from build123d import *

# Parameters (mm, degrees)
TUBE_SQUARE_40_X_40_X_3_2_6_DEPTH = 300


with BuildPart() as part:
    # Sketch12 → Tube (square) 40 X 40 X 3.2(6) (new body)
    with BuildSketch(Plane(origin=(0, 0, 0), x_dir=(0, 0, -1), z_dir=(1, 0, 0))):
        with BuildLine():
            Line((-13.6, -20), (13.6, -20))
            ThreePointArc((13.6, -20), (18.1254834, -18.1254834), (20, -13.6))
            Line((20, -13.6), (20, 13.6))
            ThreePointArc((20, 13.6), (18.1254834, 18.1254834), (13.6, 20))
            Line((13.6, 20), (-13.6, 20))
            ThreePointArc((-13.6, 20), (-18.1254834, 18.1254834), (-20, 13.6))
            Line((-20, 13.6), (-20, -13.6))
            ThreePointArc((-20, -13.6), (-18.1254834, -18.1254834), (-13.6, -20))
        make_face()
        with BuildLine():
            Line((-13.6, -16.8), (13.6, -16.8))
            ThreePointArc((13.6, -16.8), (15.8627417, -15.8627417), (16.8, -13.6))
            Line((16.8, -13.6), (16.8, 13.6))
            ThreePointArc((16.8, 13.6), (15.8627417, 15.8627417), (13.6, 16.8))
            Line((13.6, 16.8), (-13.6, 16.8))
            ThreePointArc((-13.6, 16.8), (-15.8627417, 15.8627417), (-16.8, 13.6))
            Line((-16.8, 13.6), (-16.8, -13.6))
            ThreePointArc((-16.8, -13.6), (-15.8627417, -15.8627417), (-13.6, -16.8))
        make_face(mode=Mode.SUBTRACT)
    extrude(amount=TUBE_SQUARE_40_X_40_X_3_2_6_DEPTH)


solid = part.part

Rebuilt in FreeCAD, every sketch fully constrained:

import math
import FreeCAD as App
import Part
import Sketcher

V = App.Vector

doc = App.newDocument("Part")
params = doc.addObject("Spreadsheet::Sheet", "Params")
for row, (alias, value) in enumerate([
    ("sketch1_radius", "6.4 mm"),
    ("sketch1_radius2", "3.2 mm"),
    ("sketch1_width", "27.2 mm"),
    ("pad1_length", "300 mm"),
], start=1):
    params.set(f"A{row}", alias)
    params.set(f"B{row}", "=" + value)
    params.setAlias(f"B{row}", alias)

body = doc.addObject("PartDesign::Body", "Body")

# Sketch on YZ plane
sketch1 = doc.addObject("Sketcher::SketchObject", "Sketch")
body.addObject(sketch1)
sketch1.AttachmentSupport = (doc.YZ_Plane, [""])
sketch1.MapMode = "FlatFace"
sketch1.addGeometry(Part.LineSegment(V(-20, 13.6, 0), V(-20, -13.6, 0)), False)
sketch1.addGeometry(Part.ArcOfCircle(Part.Circle(V(-13.6, -13.6, 0), V(0, 0, 1), 6.4), math.radians(180), math.radians(270)), False)
sketch1.addGeometry(Part.LineSegment(V(-13.6, -20, 0), V(13.6, -20, 0)), False)
sketch1.addGeometry(Part.ArcOfCircle(Part.Circle(V(13.6, -13.6, 0), V(0, 0, 1), 6.4), math.radians(-90), math.radians(0)), False)
sketch1.addGeometry(Part.LineSegment(V(20, -13.6, 0), V(20, 13.6, 0)), False)
sketch1.addGeometry(Part.ArcOfCircle(Part.Circle(V(13.6, 13.6, 0), V(0, 0, 1), 6.4), math.radians(0), math.radians(90)), False)
sketch1.addGeometry(Part.LineSegment(V(13.6, 20, 0), V(-13.6, 20, 0)), False)
sketch1.addGeometry(Part.ArcOfCircle(Part.Circle(V(-13.6, 13.6, 0), V(0, 0, 1), 6.4), math.radians(90), math.radians(180)), False)
sketch1.addGeometry(Part.LineSegment(V(-16.8, -13.6, 0), V(-16.8, 13.6, 0)), False)
sketch1.addGeometry(Part.ArcOfCircle(Part.Circle(V(-13.6, 13.6, 0), V(0, 0, 1), 3.2), math.radians(90), math.radians(180)), False)
sketch1.addGeometry(Part.LineSegment(V(-13.6, 16.8, 0), V(13.6, 16.8, 0)), False)
sketch1.addGeometry(Part.ArcOfCircle(Part.Circle(V(13.6, 13.6, 0), V(0, 0, 1), 3.2), math.radians(0), math.radians(90)), False)
sketch1.addGeometry(Part.LineSegment(V(16.8, 13.6, 0), V(16.8, -13.6, 0)), False)
sketch1.addGeometry(Part.ArcOfCircle(Part.Circle(V(13.6, -13.6, 0), V(0, 0, 1), 3.2), math.radians(-90), math.radians(0)), False)
sketch1.addGeometry(Part.LineSegment(V(13.6, -16.8, 0), V(-13.6, -16.8, 0)), False)
sketch1.addGeometry(Part.ArcOfCircle(Part.Circle(V(-13.6, -13.6, 0), V(0, 0, 1), 3.2), math.radians(180), math.radians(270)), False)
sketch1.addConstraint(Sketcher.Constraint("Tangent", 0, 2, 1, 1))
sketch1.addConstraint(Sketcher.Constraint("Tangent", 1, 2, 2, 1))
sketch1.addConstraint(Sketcher.Constraint("Tangent", 2, 2, 3, 1))
sketch1.addConstraint(Sketcher.Constraint("Tangent", 3, 2, 4, 1))
sketch1.addConstraint(Sketcher.Constraint("Tangent", 4, 2, 5, 1))
sketch1.addConstraint(Sketcher.Constraint("Tangent", 5, 2, 6, 1))
sketch1.addConstraint(Sketcher.Constraint("Tangent", 6, 2, 7, 1))
sketch1.addConstraint(Sketcher.Constraint("Tangent", 7, 2, 0, 1))
sketch1.addConstraint(Sketcher.Constraint("Tangent", 8, 2, 9, 2))
sketch1.addConstraint(Sketcher.Constraint("Tangent", 9, 1, 10, 1))
sketch1.addConstraint(Sketcher.Constraint("Tangent", 10, 2, 11, 2))
sketch1.addConstraint(Sketcher.Constraint("Tangent", 11, 1, 12, 1))
sketch1.addConstraint(Sketcher.Constraint("Tangent", 12, 2, 13, 2))
sketch1.addConstraint(Sketcher.Constraint("Tangent", 13, 1, 14, 1))
sketch1.addConstraint(Sketcher.Constraint("Tangent", 14, 2, 15, 2))
sketch1.addConstraint(Sketcher.Constraint("Tangent", 15, 1, 8, 1))
sketch1.addConstraint(Sketcher.Constraint("Vertical", 0))
sketch1.addConstraint(Sketcher.Constraint("Horizontal", 2))
sketch1.addConstraint(Sketcher.Constraint("Vertical", 4))
sketch1.addConstraint(Sketcher.Constraint("Horizontal", 6))
sketch1.addConstraint(Sketcher.Constraint("Vertical", 8))
sketch1.addConstraint(Sketcher.Constraint("Horizontal", 10))
sketch1.addConstraint(Sketcher.Constraint("Vertical", 12))
sketch1.addConstraint(Sketcher.Constraint("Horizontal", 14))
sketch1.addConstraint(Sketcher.Constraint("Coincident", 9, 3, 7, 3))
sketch1.addConstraint(Sketcher.Constraint("Coincident", 11, 3, 5, 3))
sketch1.addConstraint(Sketcher.Constraint("Coincident", 13, 3, 3, 3))
sketch1.addConstraint(Sketcher.Constraint("Equal", 1, 3))
sketch1.addConstraint(Sketcher.Constraint("Equal", 3, 5))
sketch1.addConstraint(Sketcher.Constraint("Equal", 5, 7))
sketch1.addConstraint(Sketcher.Constraint("Equal", 13, 15))
sketch1.addConstraint(Sketcher.Constraint("Symmetric", 1, 3, 5, 3, -1, 1))
sketch1.addConstraint(Sketcher.Constraint("Equal", 14, 0))
sketch1.addConstraint(Sketcher.Constraint("Radius", 1, 6.4))
sketch1.addConstraint(Sketcher.Constraint("Radius", 9, 3.2))
sketch1.addConstraint(Sketcher.Constraint("DistanceX", 2, 1, 2, 2, 27.2))
sketch1.setExpression("Constraints[33]", "Params.sketch1_radius")
sketch1.setExpression("Constraints[34]", "Params.sketch1_radius2")
sketch1.setExpression("Constraints[35]", "Params.sketch1_width")
pad1 = doc.addObject("PartDesign::Pad", "Pad")
body.addObject(pad1)
pad1.Profile = sketch1
pad1.setExpression("Length", "Params.pad1_length")

doc.recompute()
